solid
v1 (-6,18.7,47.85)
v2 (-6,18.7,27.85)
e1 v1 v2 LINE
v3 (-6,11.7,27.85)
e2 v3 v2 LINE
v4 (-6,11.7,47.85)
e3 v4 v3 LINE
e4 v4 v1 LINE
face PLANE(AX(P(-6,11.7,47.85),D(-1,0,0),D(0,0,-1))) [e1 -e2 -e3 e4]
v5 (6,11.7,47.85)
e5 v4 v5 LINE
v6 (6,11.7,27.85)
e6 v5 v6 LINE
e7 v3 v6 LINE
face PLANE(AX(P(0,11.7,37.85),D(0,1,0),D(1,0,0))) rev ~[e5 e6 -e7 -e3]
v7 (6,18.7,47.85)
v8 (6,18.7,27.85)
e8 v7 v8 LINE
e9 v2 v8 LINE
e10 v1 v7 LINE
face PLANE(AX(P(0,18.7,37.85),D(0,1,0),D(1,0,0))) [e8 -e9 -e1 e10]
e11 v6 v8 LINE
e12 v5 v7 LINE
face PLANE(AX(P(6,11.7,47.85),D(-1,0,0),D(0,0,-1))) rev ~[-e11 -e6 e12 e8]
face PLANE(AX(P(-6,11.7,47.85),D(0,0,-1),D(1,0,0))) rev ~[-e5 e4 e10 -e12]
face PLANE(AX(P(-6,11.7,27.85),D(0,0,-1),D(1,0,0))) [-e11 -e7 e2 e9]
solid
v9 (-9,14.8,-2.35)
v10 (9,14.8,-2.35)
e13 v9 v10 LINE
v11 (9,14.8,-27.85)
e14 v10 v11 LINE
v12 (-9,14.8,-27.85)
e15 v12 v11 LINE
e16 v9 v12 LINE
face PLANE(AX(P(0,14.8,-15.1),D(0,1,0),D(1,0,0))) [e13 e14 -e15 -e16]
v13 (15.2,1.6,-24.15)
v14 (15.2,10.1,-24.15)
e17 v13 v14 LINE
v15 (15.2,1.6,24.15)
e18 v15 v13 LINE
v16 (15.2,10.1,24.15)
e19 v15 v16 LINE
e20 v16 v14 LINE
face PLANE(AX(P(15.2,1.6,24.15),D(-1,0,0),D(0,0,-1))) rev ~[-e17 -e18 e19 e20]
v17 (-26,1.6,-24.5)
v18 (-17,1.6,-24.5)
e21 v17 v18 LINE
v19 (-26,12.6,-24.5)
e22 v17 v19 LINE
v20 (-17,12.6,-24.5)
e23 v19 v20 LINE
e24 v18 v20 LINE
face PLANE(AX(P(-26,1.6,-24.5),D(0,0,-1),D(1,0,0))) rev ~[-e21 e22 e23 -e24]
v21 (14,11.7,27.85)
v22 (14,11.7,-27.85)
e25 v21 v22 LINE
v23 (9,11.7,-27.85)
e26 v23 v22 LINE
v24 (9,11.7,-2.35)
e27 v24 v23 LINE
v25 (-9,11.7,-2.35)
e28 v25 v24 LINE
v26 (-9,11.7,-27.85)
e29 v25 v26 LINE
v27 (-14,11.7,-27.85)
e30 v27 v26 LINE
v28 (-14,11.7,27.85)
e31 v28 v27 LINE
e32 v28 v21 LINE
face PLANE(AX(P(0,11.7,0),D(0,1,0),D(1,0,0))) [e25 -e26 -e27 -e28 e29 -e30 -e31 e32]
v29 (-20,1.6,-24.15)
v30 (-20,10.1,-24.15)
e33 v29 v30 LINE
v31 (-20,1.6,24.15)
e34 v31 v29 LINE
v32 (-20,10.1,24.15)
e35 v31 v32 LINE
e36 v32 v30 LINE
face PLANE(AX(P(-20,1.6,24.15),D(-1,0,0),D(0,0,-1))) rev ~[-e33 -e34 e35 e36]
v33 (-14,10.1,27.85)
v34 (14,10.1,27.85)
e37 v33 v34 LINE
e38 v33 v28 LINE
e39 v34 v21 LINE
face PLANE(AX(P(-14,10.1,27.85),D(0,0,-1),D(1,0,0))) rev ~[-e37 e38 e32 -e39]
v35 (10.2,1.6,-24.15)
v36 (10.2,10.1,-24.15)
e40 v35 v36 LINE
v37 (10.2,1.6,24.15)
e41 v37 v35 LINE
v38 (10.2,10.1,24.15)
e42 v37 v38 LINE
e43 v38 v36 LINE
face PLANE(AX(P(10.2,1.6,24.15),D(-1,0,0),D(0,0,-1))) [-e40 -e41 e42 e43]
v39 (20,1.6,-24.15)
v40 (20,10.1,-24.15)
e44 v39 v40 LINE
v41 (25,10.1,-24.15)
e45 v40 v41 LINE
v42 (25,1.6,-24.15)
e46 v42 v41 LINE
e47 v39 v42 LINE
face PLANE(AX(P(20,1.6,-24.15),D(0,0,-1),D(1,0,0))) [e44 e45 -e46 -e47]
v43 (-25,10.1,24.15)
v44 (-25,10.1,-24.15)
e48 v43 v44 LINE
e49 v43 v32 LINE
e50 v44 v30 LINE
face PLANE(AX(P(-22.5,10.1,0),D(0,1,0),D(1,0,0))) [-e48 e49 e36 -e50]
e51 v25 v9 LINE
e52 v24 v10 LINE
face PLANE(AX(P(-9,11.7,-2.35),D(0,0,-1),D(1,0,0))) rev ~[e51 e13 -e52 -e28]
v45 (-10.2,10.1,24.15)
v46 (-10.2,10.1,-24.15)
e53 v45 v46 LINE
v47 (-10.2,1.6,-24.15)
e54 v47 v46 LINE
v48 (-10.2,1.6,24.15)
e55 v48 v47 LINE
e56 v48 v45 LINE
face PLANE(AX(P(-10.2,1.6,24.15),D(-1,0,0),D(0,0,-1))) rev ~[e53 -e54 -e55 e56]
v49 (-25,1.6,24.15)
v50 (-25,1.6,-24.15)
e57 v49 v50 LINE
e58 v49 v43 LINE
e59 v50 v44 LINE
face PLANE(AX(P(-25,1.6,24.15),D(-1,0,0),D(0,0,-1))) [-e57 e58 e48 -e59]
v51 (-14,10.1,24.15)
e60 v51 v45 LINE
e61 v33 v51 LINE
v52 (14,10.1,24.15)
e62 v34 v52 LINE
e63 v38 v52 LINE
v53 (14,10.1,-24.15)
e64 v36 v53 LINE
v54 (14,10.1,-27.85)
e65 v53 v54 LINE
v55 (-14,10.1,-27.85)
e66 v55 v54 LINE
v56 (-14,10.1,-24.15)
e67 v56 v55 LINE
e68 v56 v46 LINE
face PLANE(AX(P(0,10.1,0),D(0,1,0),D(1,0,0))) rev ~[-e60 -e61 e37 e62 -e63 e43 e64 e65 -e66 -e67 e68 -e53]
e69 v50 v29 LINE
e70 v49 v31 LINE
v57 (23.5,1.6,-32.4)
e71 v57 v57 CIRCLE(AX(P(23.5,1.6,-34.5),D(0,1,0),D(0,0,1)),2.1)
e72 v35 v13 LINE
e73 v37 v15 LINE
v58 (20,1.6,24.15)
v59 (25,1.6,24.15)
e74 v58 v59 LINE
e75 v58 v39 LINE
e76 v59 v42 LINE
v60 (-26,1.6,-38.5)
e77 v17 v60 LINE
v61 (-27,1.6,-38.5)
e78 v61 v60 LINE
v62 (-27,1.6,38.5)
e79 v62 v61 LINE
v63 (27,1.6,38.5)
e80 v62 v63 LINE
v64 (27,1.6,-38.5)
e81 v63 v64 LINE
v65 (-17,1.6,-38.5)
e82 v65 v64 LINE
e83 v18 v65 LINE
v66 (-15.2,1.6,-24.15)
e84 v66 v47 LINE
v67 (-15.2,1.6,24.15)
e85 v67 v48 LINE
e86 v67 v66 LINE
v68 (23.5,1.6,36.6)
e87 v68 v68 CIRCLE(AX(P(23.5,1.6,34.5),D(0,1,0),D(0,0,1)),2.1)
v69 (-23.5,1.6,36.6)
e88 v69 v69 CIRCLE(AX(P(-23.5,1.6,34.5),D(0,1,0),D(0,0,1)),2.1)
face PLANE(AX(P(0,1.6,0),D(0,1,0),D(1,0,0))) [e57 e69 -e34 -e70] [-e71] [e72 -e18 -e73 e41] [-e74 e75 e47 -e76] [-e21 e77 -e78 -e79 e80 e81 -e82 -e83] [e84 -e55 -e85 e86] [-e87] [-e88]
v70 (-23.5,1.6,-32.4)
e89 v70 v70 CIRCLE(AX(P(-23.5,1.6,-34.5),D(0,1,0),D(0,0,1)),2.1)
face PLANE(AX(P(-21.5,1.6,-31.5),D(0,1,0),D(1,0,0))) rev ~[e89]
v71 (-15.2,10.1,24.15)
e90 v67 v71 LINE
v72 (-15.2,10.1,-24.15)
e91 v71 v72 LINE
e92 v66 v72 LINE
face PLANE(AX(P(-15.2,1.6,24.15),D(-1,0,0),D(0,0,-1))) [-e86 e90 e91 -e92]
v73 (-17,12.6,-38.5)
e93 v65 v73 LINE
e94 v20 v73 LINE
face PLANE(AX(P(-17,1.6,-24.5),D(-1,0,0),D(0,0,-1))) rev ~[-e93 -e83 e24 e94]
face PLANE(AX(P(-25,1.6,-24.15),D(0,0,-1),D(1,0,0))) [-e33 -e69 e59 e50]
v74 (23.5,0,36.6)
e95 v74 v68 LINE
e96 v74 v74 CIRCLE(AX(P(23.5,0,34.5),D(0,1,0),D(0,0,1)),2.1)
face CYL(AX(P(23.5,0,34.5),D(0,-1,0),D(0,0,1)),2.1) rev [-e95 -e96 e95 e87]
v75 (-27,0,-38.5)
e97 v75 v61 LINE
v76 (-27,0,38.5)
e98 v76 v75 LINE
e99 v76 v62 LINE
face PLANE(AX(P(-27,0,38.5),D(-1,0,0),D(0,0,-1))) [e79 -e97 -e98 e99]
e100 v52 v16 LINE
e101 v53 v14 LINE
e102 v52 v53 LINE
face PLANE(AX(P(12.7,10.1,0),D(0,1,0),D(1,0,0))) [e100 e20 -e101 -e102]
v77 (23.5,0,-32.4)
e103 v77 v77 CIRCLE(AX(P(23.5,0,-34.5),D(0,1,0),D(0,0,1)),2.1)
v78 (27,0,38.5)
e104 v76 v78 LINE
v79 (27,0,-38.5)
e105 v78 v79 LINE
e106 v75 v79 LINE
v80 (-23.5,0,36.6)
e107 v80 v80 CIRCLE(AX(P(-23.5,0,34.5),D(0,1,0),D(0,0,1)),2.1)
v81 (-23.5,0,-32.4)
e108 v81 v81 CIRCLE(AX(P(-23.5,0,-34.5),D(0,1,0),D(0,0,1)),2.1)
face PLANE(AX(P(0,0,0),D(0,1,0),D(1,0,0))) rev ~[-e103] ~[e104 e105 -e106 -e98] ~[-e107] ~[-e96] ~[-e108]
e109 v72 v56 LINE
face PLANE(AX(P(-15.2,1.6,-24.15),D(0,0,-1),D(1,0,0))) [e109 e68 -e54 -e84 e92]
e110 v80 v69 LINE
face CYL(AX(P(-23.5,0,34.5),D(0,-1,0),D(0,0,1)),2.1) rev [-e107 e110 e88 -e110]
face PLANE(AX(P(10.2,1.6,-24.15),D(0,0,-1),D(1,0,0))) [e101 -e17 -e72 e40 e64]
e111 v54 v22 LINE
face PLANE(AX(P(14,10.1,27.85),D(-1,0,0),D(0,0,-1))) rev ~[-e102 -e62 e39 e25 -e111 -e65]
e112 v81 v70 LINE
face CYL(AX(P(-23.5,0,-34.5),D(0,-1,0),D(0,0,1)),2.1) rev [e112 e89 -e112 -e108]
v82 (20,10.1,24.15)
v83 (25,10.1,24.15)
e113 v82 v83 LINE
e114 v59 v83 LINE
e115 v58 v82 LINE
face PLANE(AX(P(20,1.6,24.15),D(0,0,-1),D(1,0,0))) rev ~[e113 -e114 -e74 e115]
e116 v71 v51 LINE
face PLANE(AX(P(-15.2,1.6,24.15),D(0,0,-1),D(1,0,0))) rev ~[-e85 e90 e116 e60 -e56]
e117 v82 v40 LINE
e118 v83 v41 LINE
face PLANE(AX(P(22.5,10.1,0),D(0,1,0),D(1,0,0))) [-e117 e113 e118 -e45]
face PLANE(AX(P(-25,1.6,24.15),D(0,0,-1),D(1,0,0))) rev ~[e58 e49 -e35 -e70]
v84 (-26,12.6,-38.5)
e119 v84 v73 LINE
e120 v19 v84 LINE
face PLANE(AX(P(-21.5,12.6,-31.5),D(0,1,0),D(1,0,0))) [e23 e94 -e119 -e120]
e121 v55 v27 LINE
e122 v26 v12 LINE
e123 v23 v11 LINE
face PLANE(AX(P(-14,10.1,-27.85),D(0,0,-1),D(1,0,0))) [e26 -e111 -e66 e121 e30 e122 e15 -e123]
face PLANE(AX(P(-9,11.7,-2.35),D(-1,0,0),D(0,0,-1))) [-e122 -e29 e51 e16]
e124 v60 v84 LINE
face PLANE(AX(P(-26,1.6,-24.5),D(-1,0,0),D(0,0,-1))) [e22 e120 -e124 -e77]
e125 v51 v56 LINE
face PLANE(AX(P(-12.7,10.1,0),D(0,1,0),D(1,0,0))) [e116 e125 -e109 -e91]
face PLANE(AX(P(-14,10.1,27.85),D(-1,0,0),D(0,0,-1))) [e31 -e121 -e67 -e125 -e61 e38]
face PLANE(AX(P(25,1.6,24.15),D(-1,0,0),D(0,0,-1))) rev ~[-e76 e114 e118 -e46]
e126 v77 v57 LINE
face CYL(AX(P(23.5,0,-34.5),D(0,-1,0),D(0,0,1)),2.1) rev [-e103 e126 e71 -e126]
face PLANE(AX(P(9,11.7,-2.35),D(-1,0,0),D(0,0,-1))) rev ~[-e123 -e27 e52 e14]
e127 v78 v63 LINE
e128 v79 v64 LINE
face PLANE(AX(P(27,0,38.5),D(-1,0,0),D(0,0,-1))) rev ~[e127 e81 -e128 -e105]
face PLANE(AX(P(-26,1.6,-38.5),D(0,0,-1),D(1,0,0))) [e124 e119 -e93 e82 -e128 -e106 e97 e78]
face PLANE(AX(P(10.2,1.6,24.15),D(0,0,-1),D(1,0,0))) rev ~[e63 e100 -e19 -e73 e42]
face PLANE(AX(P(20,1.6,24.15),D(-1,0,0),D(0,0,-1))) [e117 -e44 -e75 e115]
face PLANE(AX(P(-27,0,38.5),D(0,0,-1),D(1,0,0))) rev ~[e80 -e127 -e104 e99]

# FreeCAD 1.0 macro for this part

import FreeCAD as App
import Part
import Sketcher
Q = App.Units.Quantity


def add_polygon(sketch, points):
    """Adds a closed chain of lines whose ends are joined by coincident constraints."""
    first, n = sketch.GeometryCount, len(points)
    for a, b in zip(points, points[1:] + points[:1]):
        sketch.addGeometry(Part.LineSegment(App.Vector(*a, 0), App.Vector(*b, 0)), False)
    for i in range(n):
        sketch.addConstraint(Sketcher.Constraint("Coincident", first + i, 2, first + (i + 1) % n, 1))

doc = App.newDocument("Part")
body = doc.addObject("PartDesign::Body", "Body")

# Sketch on XZ plane
sketch1 = body.newObject("Sketcher::SketchObject", "Sketch")
sketch1.AttachmentSupport = (doc.getObject("XZ_Plane"), [""])
sketch1.MapMode = "FlatFace"
add_polygon(sketch1, [(-27, -38), (-27, 38), (27, 38), (27, -38)])  # lines 0-3
sketch1.addConstraint(Sketcher.Constraint("Vertical", 0))
sketch1.addConstraint(Sketcher.Constraint("Horizontal", 1))
sketch1.addConstraint(Sketcher.Constraint("Vertical", 2))
sketch1.addConstraint(Sketcher.Constraint("Horizontal", 3))
sketch1.addConstraint(Sketcher.Constraint("Symmetric", 0, 2, 2, 2, -1, 1))
sketch1.addConstraint(Sketcher.Constraint("DistanceX", 1, 1, 1, 2, Q("54 mm")))
sketch1.addConstraint(Sketcher.Constraint("DistanceY", 0, 1, 0, 2, Q("77 mm")))
pad1 = body.newObject("PartDesign::Pad", "Pad")
pad1.Profile = sketch1
pad1.Length = 1.6
pad1.Reversed = True

# Sketch on XZ plane
sketch2 = body.newObject("Sketcher::SketchObject", "Sketch001")
sketch2.AttachmentSupport = (doc.getObject("XZ_Plane"), [""])
sketch2.MapMode = "FlatFace"
sketch2.addGeometry(Part.Circle(App.Vector(23.5, 34.5, 0), App.Vector(0, 0, 1), 2.1), False)
sketch2.addGeometry(Part.Circle(App.Vector(-23.5, 34.5, 0), App.Vector(0, 0, 1), 2.1), False)
sketch2.addGeometry(Part.Circle(App.Vector(23.5, -34.5, 0), App.Vector(0, 0, 1), 2.1), False)
sketch2.addGeometry(Part.Circle(App.Vector(-23.5, -34.5, 0), App.Vector(0, 0, 1), 2.1), False)
sketch2.addConstraint(Sketcher.Constraint("Equal", 0, 1))
sketch2.addConstraint(Sketcher.Constraint("Equal", 1, 2))
sketch2.addConstraint(Sketcher.Constraint("Equal", 2, 3))
sketch2.addConstraint(Sketcher.Constraint("Symmetric", 1, 3, 2, 3, -1, 1))
sketch2.addConstraint(Sketcher.Constraint("Symmetric", 0, 3, 3, 3, -1, 1))
sketch2.addConstraint(Sketcher.Constraint("Symmetric", 0, 3, 1, 3, -2))
sketch2.addConstraint(Sketcher.Constraint("Diameter", 0, Q("4.2 mm")))
sketch2.addConstraint(Sketcher.Constraint("DistanceX", 1, 3, 0, 3, Q("47 mm")))
sketch2.addConstraint(Sketcher.Constraint("DistanceY", 2, 3, 0, 3, Q("69 mm")))
pocket1 = body.newObject("PartDesign::Pocket", "Pocket")
pocket1.Profile = sketch2
pocket1.Length = 1.6

# Sketch on XZ plane
sketch3 = body.newObject("Sketcher::SketchObject", "Sketch002")
sketch3.AttachmentSupport = (doc.getObject("XZ_Plane"), [""])
sketch3.MapMode = "FlatFace"
sketch3.AttachmentOffset = App.Placement(App.Vector(0, 0, -1.6), App.Rotation())
add_polygon(sketch3, [(10, -24), (10, 24), (15, 24), (15, -24)])  # lines 0-3
add_polygon(sketch3, [(-15, -24), (-15, 24), (-10, 24), (-10, -24)])  # lines 4-7
sketch3.addConstraint(Sketcher.Constraint("Vertical", 0))
sketch3.addConstraint(Sketcher.Constraint("Horizontal", 1))
sketch3.addConstraint(Sketcher.Constraint("Vertical", 2))
sketch3.addConstraint(Sketcher.Constraint("Horizontal", 3))
sketch3.addConstraint(Sketcher.Constraint("Vertical", 4))
sketch3.addConstraint(Sketcher.Constraint("Horizontal", 5))
sketch3.addConstraint(Sketcher.Constraint("Vertical", 6))
sketch3.addConstraint(Sketcher.Constraint("Horizontal", 7))
sketch3.addConstraint(Sketcher.Constraint("Symmetric", 2, 2, 4, 2, -1, 1))
sketch3.addConstraint(Sketcher.Constraint("Symmetric", 0, 2, 6, 2, -1, 1))
sketch3.addConstraint(Sketcher.Constraint("Horizontal", 1, 2, 4, 2))
sketch3.addConstraint(Sketcher.Constraint("DistanceX", 1, 1, 1, 2, Q("5 mm")))
sketch3.addConstraint(Sketcher.Constraint("DistanceY", 0, 1, 0, 2, Q("48.3 mm")))
sketch3.addConstraint(Sketcher.Constraint("DistanceX", -1, 1, 0, 2, Q("10.2 mm")))
pad2 = body.newObject("PartDesign::Pad", "Pad001")
pad2.Profile = sketch3
pad2.Length = 8.5
pad2.Reversed = True

# Sketch on XZ plane
sketch4 = body.newObject("Sketcher::SketchObject", "Sketch003")
sketch4.AttachmentSupport = (doc.getObject("XZ_Plane"), [""])
sketch4.MapMode = "FlatFace"
sketch4.AttachmentOffset = App.Placement(App.Vector(0, 0, -1.6), App.Rotation())
add_polygon(sketch4, [(20, -24), (20, 24), (25, 24), (25, -24)])  # lines 0-3
add_polygon(sketch4, [(-25, -24), (-25, 24), (-20, 24), (-20, -24)])  # lines 4-7
sketch4.addConstraint(Sketcher.Constraint("Vertical", 0))
sketch4.addConstraint(Sketcher.Constraint("Horizontal", 1))
sketch4.addConstraint(Sketcher.Constraint("Vertical", 2))
sketch4.addConstraint(Sketcher.Constraint("Horizontal", 3))
sketch4.addConstraint(Sketcher.Constraint("Vertical", 4))
sketch4.addConstraint(Sketcher.Constraint("Horizontal", 5))
sketch4.addConstraint(Sketcher.Constraint("Vertical", 6))
sketch4.addConstraint(Sketcher.Constraint("Horizontal", 7))
sketch4.addConstraint(Sketcher.Constraint("Symmetric", 2, 2, 4, 2, -1, 1))
sketch4.addConstraint(Sketcher.Constraint("Symmetric", 0, 2, 6, 2, -1, 1))
sketch4.addConstraint(Sketcher.Constraint("Horizontal", 1, 2, 4, 2))
sketch4.addConstraint(Sketcher.Constraint("DistanceX", 1, 1, 1, 2, Q("5 mm")))
sketch4.addConstraint(Sketcher.Constraint("DistanceY", 0, 1, 0, 2, Q("48.3 mm")))
sketch4.addConstraint(Sketcher.Constraint("DistanceX", -1, 1, 0, 2, Q("20 mm")))
pad3 = body.newObject("PartDesign::Pad", "Pad002")
pad3.Profile = sketch4
pad3.Length = 8.5
pad3.Reversed = True

# Sketch on XZ plane
sketch5 = body.newObject("Sketcher::SketchObject", "Sketch004")
sketch5.AttachmentSupport = (doc.getObject("XZ_Plane"), [""])
sketch5.MapMode = "FlatFace"
sketch5.AttachmentOffset = App.Placement(App.Vector(0, 0, -1.6), App.Rotation())
add_polygon(sketch5, [(-26, -38), (-26, -24), (-17, -24), (-17, -38)])  # lines 0-3
sketch5.addConstraint(Sketcher.Constraint("Vertical", 0))
sketch5.addConstraint(Sketcher.Constraint("Horizontal", 1))
sketch5.addConstraint(Sketcher.Constraint("Vertical", 2))
sketch5.addConstraint(Sketcher.Constraint("Horizontal", 3))
sketch5.addConstraint(Sketcher.Constraint("DistanceX", 1, 1, 1, 2, Q("9 mm")))
sketch5.addConstraint(Sketcher.Constraint("DistanceY", 0, 1, 0, 2, Q("14 mm")))
sketch5.addConstraint(Sketcher.Constraint("DistanceX", 0, 2, -1, 1, Q("26 mm")))
sketch5.addConstraint(Sketcher.Constraint("DistanceY", 0, 2, -1, 1, Q("24.5 mm")))
pad4 = body.newObject("PartDesign::Pad", "Pad003")
pad4.Profile = sketch5
pad4.Length = 11
pad4.Reversed = True

# Sketch on XZ plane
sketch6 = body.newObject("Sketcher::SketchObject", "Sketch005")
sketch6.AttachmentSupport = (doc.getObject("XZ_Plane"), [""])
sketch6.MapMode = "FlatFace"
sketch6.AttachmentOffset = App.Placement(App.Vector(0, 0, -10.1), App.Rotation())
add_polygon(sketch6, [(-14, -28), (-14, 28), (14, 28), (14, -28)])  # lines 0-3
sketch6.addConstraint(Sketcher.Constraint("Vertical", 0))
sketch6.addConstraint(Sketcher.Constraint("Horizontal", 1))
sketch6.addConstraint(Sketcher.Constraint("Vertical", 2))
sketch6.addConstraint(Sketcher.Constraint("Horizontal", 3))
sketch6.addConstraint(Sketcher.Constraint("Symmetric", 0, 2, 2, 2, -1, 1))
sketch6.addConstraint(Sketcher.Constraint("DistanceX", 1, 1, 1, 2, Q("28 mm")))
sketch6.addConstraint(Sketcher.Constraint("DistanceY", 0, 1, 0, 2, Q("55.7 mm")))
pad5 = body.newObject("PartDesign::Pad", "Pad004")
pad5.Profile = sketch6
pad5.Length = 1.6
pad5.Reversed = True

# Sketch on XZ plane
sketch7 = body.newObject("Sketcher::SketchObject", "Sketch006")
sketch7.AttachmentSupport = (doc.getObject("XZ_Plane"), [""])
sketch7.MapMode = "FlatFace"
sketch7.AttachmentOffset = App.Placement(App.Vector(0, 0, -11.7), App.Rotation())
add_polygon(sketch7, [(-9, -28), (-9, -2), (9, -2), (9, -28)])  # lines 0-3
sketch7.addConstraint(Sketcher.Constraint("Vertical", 0))
sketch7.addConstraint(Sketcher.Constraint("Horizontal", 1))
sketch7.addConstraint(Sketcher.Constraint("Vertical", 2))
sketch7.addConstraint(Sketcher.Constraint("Horizontal", 3))
sketch7.addConstraint(Sketcher.Constraint("DistanceX", 1, 1, 1, 2, Q("18 mm")))
sketch7.addConstraint(Sketcher.Constraint("DistanceY", 0, 1, 0, 2, Q("25.5 mm")))
sketch7.addConstraint(Sketcher.Constraint("DistanceX", 0, 2, -1, 1, Q("9 mm")))
sketch7.addConstraint(Sketcher.Constraint("DistanceY", 0, 2, -1, 1, Q("2.35 mm")))
pad6 = body.newObject("PartDesign::Pad", "Pad005")
pad6.Profile = sketch7
pad6.Length = 3.1
pad6.Reversed = True
body2 = doc.addObject("PartDesign::Body", "Body001")

# Sketch on XZ plane
sketch8 = body2.newObject("Sketcher::SketchObject", "Sketch007")
sketch8.AttachmentSupport = (doc.getObject("XZ_Plane001"), [""])
sketch8.MapMode = "FlatFace"
sketch8.AttachmentOffset = App.Placement(App.Vector(0, 0, -11.7), App.Rotation())
add_polygon(sketch8, [(-6, 28), (-6, 48), (6, 48), (6, 28)])  # lines 0-3
sketch8.addConstraint(Sketcher.Constraint("Vertical", 0))
sketch8.addConstraint(Sketcher.Constraint("Horizontal", 1))
sketch8.addConstraint(Sketcher.Constraint("Vertical", 2))
sketch8.addConstraint(Sketcher.Constraint("Horizontal", 3))
sketch8.addConstraint(Sketcher.Constraint("DistanceX", 1, 1, 1, 2, Q("12 mm")))
sketch8.addConstraint(Sketcher.Constraint("DistanceY", 0, 1, 0, 2, Q("20 mm")))
sketch8.addConstraint(Sketcher.Constraint("DistanceX", 0, 2, -1, 1, Q("6 mm")))
sketch8.addConstraint(Sketcher.Constraint("DistanceY", -1, 1, 0, 2, Q("47.85 mm")))
pad7 = body2.newObject("PartDesign::Pad", "Pad006")
pad7.Profile = sketch8
pad7.Length = 7
pad7.Reversed = True

doc.recompute()
